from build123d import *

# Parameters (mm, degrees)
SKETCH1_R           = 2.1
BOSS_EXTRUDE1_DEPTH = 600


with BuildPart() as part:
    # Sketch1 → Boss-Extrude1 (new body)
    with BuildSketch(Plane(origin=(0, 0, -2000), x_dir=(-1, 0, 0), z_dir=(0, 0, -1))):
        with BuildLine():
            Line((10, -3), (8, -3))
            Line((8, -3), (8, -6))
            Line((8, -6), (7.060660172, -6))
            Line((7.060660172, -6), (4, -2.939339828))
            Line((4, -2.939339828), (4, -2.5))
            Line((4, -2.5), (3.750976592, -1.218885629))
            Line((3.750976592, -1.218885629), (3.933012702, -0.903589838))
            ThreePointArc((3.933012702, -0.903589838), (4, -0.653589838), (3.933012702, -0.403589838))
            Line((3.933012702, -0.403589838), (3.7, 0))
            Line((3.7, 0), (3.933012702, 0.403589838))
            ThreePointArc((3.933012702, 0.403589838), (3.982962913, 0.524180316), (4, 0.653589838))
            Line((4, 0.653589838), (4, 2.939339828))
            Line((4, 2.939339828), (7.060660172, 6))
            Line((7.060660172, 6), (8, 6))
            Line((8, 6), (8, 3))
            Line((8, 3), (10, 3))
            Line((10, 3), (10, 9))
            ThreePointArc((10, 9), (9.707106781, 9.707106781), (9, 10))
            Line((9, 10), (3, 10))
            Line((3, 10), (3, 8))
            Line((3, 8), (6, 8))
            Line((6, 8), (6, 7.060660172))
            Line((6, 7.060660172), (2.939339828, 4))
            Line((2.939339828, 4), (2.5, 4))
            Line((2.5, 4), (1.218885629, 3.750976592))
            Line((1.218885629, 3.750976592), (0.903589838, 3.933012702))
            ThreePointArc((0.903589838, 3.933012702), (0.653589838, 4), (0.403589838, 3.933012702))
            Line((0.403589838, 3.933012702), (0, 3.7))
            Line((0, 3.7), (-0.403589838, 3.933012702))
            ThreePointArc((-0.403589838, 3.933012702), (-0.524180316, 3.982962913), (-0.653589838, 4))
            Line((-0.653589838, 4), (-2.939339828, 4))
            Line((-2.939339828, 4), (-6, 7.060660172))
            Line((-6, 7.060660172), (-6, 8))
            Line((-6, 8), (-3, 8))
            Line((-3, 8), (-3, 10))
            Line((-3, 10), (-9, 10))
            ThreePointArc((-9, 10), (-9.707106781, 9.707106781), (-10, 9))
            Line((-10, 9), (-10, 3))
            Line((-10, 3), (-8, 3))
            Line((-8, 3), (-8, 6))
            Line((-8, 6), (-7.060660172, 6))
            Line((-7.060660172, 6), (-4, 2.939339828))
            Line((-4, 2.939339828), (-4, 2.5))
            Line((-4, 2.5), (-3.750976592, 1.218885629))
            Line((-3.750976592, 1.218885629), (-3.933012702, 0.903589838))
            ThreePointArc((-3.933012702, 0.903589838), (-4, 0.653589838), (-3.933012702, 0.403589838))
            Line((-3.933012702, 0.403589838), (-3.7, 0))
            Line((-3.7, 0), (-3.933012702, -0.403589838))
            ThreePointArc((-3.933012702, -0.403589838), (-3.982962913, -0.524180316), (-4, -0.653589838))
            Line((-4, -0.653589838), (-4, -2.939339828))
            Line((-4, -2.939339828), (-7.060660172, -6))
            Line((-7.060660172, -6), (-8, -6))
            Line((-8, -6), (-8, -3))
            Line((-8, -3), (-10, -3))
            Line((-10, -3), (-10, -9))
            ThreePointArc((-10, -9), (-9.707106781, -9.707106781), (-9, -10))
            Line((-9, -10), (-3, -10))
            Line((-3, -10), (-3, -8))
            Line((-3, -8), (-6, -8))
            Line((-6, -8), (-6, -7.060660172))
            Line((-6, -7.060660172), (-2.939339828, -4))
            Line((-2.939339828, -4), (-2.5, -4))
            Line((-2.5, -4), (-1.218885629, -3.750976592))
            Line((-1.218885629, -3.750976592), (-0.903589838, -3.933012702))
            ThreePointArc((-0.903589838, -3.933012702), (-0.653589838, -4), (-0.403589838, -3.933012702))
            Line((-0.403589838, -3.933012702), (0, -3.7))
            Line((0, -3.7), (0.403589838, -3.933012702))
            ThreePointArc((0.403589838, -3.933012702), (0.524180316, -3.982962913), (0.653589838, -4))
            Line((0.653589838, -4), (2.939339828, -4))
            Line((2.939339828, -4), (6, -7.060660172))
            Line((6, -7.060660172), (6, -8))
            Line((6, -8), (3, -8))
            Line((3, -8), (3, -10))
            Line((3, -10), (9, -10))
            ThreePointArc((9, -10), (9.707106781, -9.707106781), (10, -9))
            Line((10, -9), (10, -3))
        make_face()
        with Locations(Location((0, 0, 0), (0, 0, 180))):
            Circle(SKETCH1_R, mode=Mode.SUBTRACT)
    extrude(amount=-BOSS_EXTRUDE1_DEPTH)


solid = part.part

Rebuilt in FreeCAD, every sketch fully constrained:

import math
import FreeCAD as App
import Part
import Sketcher
Q = App.Units.Quantity

doc = App.newDocument("Part")
body = doc.addObject("PartDesign::Body", "Body")

sketch1 = doc.addObject("Sketcher::SketchObject", "Sketch")
body.addObject(sketch1)
sketch1.AttachmentSupport = (doc.XY_Plane, [""])
sketch1.MapMode = "FlatFace"
sketch1.AttachmentOffset = App.Placement(App.Vector(0, 0, -2000), App.Rotation())
sketch1.addGeometry(Part.LineSegment(App.Vector(-10, -3, 0), App.Vector(-8, -3, 0)), False)
sketch1.addGeometry(Part.LineSegment(App.Vector(-8, -3, 0), App.Vector(-8, -6, 0)), False)
sketch1.addGeometry(Part.LineSegment(App.Vector(-8, -6, 0), App.Vector(-7.06, -6, 0)), False)
sketch1.addGeometry(Part.LineSegment(App.Vector(-7.06, -6, 0), App.Vector(-4, -2.94, 0)), False)
sketch1.addGeometry(Part.LineSegment(App.Vector(-4, -2.94, 0), App.Vector(-4, -2.5, 0)), False)
sketch1.addGeometry(Part.LineSegment(App.Vector(-4, -2.5, 0), App.Vector(-3.75, -1.22, 0)), False)
sketch1.addGeometry(Part.LineSegment(App.Vector(-3.75, -1.22, 0), App.Vector(-3.93, -0.9, 0)), False)
sketch1.addGeometry(Part.ArcOfCircle(Part.Circle(App.Vector(-3.5, -0.65, 0), App.Vector(0, 0, 1), 0.5), math.radians(150), math.radians(210)), False)
sketch1.addGeometry(Part.LineSegment(App.Vector(-3.93, -0.4, 0), App.Vector(-3.7, 0, 0)), False)
sketch1.addGeometry(Part.LineSegment(App.Vector(-3.7, 0, 0), App.Vector(-3.93, 0.4, 0)), False)
sketch1.addGeometry(Part.ArcOfCircle(Part.Circle(App.Vector(-3.5, 0.65, 0), App.Vector(0, 0, 1), 0.5), math.radians(-180), math.radians(-150)), False)
sketch1.addGeometry(Part.LineSegment(App.Vector(-4, 0.65, 0), App.Vector(-4, 2.94, 0)), False)
sketch1.addGeometry(Part.LineSegment(App.Vector(-4, 2.94, 0), App.Vector(-7.06, 6, 0)), False)
sketch1.addGeometry(Part.LineSegment(App.Vector(-7.06, 6, 0), App.Vector(-8, 6, 0)), False)
sketch1.addGeometry(Part.LineSegment(App.Vector(-8, 6, 0), App.Vector(-8, 3, 0)), False)
sketch1.addGeometry(Part.LineSegment(App.Vector(-8, 3, 0), App.Vector(-10, 3, 0)), False)
sketch1.addGeometry(Part.LineSegment(App.Vector(-10, 3, 0), App.Vector(-10, 9, 0)), False)
sketch1.addGeometry(Part.ArcOfCircle(Part.Circle(App.Vector(-9, 9, 0), App.Vector(0, 0, 1), 1), math.radians(90), math.radians(180)), False)
sketch1.addGeometry(Part.LineSegment(App.Vector(-9, 10, 0), App.Vector(-3, 10, 0)), False)
sketch1.addGeometry(Part.LineSegment(App.Vector(-3, 10, 0), App.Vector(-3, 8, 0)), False)
sketch1.addGeometry(Part.LineSegment(App.Vector(-3, 8, 0), App.Vector(-6, 8, 0)), False)
sketch1.addGeometry(Part.LineSegment(App.Vector(-6, 8, 0), App.Vector(-6, 7.06, 0)), False)
sketch1.addGeometry(Part.LineSegment(App.Vector(-6, 7.06, 0), App.Vector(-2.94, 4, 0)), False)
sketch1.addGeometry(Part.LineSegment(App.Vector(-2.94, 4, 0), App.Vector(-2.5, 4, 0)), False)
sketch1.addGeometry(Part.LineSegment(App.Vector(-2.5, 4, 0), App.Vector(-1.22, 3.75, 0)), False)
sketch1.addGeometry(Part.LineSegment(App.Vector(-1.22, 3.75, 0), App.Vector(-0.9, 3.93, 0)), False)
sketch1.addGeometry(Part.ArcOfCircle(Part.Circle(App.Vector(-0.65, 3.5, 0), App.Vector(0, 0, 1), 0.5), math.radians(60), math.radians(120)), False)
sketch1.addGeometry(Part.LineSegment(App.Vector(-0.4, 3.93, 0), App.Vector(0, 3.7, 0)), False)
sketch1.addGeometry(Part.LineSegment(App.Vector(0, 3.7, 0), App.Vector(0.4, 3.93, 0)), False)
sketch1.addGeometry(Part.ArcOfCircle(Part.Circle(App.Vector(0.65, 3.5, 0), App.Vector(0, 0, 1), 0.5), math.radians(90), math.radians(120)), False)
sketch1.addGeometry(Part.LineSegment(App.Vector(0.65, 4, 0), App.Vector(2.94, 4, 0)), False)
sketch1.addGeometry(Part.LineSegment(App.Vector(2.94, 4, 0), App.Vector(6, 7.06, 0)), False)
sketch1.addGeometry(Part.LineSegment(App.Vector(6, 7.06, 0), App.Vector(6, 8, 0)), False)
sketch1.addGeometry(Part.LineSegment(App.Vector(6, 8, 0), App.Vector(3, 8, 0)), False)
sketch1.addGeometry(Part.LineSegment(App.Vector(3, 8, 0), App.Vector(3, 10, 0)), False)
sketch1.addGeometry(Part.LineSegment(App.Vector(3, 10, 0), App.Vector(9, 10, 0)), False)
sketch1.addGeometry(Part.ArcOfCircle(Part.Circle(App.Vector(9, 9, 0), App.Vector(0, 0, 1), 1), math.radians(0), math.radians(90)), False)
sketch1.addGeometry(Part.LineSegment(App.Vector(10, 9, 0), App.Vector(10, 3, 0)), False)
sketch1.addGeometry(Part.LineSegment(App.Vector(10, 3, 0), App.Vector(8, 3, 0)), False)
sketch1.addGeometry(Part.LineSegment(App.Vector(8, 3, 0), App.Vector(8, 6, 0)), False)
sketch1.addGeometry(Part.LineSegment(App.Vector(8, 6, 0), App.Vector(7.06, 6, 0)), False)
sketch1.addGeometry(Part.LineSegment(App.Vector(7.06, 6, 0), App.Vector(4, 2.94, 0)), False)
sketch1.addGeometry(Part.LineSegment(App.Vector(4, 2.94, 0), App.Vector(4, 2.5, 0)), False)
sketch1.addGeometry(Part.LineSegment(App.Vector(4, 2.5, 0), App.Vector(3.75, 1.22, 0)), False)
sketch1.addGeometry(Part.LineSegment(App.Vector(3.75, 1.22, 0), App.Vector(3.93, 0.9, 0)), False)
sketch1.addGeometry(Part.ArcOfCircle(Part.Circle(App.Vector(3.5, 0.65, 0), App.Vector(0, 0, 1), 0.5), math.radians(-30), math.radians(30)), False)
sketch1.addGeometry(Part.LineSegment(App.Vector(3.93, 0.4, 0), App.Vector(3.7, 0, 0)), False)
sketch1.addGeometry(Part.LineSegment(App.Vector(3.7, 0, 0), App.Vector(3.93, -0.4, 0)), False)
sketch1.addGeometry(Part.ArcOfCircle(Part.Circle(App.Vector(3.5, -0.65, 0), App.Vector(0, 0, 1), 0.5), math.radians(0), math.radians(30)), False)
sketch1.addGeometry(Part.LineSegment(App.Vector(4, -0.65, 0), App.Vector(4, -2.94, 0)), False)
sketch1.addGeometry(Part.LineSegment(App.Vector(4, -2.94, 0), App.Vector(7.06, -6, 0)), False)
sketch1.addGeometry(Part.LineSegment(App.Vector(7.06, -6, 0), App.Vector(8, -6, 0)), False)
sketch1.addGeometry(Part.LineSegment(App.Vector(8, -6, 0), App.Vector(8, -3, 0)), False)
sketch1.addGeometry(Part.LineSegment(App.Vector(8, -3, 0), App.Vector(10, -3, 0)), False)
sketch1.addGeometry(Part.LineSegment(App.Vector(10, -3, 0), App.Vector(10, -9, 0)), False)
sketch1.addGeometry(Part.ArcOfCircle(Part.Circle(App.Vector(9, -9, 0), App.Vector(0, 0, 1), 1), math.radians(-90), math.radians(0)), False)
sketch1.addGeometry(Part.LineSegment(App.Vector(9, -10, 0), App.Vector(3, -10, 0)), False)
sketch1.addGeometry(Part.LineSegment(App.Vector(3, -10, 0), App.Vector(3, -8, 0)), False)
sketch1.addGeometry(Part.LineSegment(App.Vector(3, -8, 0), App.Vector(6, -8, 0)), False)
sketch1.addGeometry(Part.LineSegment(App.Vector(6, -8, 0), App.Vector(6, -7.06, 0)), False)
sketch1.addGeometry(Part.LineSegment(App.Vector(6, -7.06, 0), App.Vector(2.94, -4, 0)), False)
sketch1.addGeometry(Part.LineSegment(App.Vector(2.94, -4, 0), App.Vector(2.5, -4, 0)), False)
sketch1.addGeometry(Part.LineSegment(App.Vector(2.5, -4, 0), App.Vector(1.22, -3.75, 0)), False)
sketch1.addGeometry(Part.LineSegment(App.Vector(1.22, -3.75, 0), App.Vector(0.9, -3.93, 0)), False)
sketch1.addGeometry(Part.ArcOfCircle(Part.Circle(App.Vector(0.65, -3.5, 0), App.Vector(0, 0, 1), 0.5), math.radians(-120), math.radians(-60)), False)
sketch1.addGeometry(Part.LineSegment(App.Vector(0.4, -3.93, 0), App.Vector(0, -3.7, 0)), False)
sketch1.addGeometry(Part.LineSegment(App.Vector(0, -3.7, 0), App.Vector(-0.4, -3.93, 0)), False)
sketch1.addGeometry(Part.ArcOfCircle(Part.Circle(App.Vector(-0.65, -3.5, 0), App.Vector(0, 0, 1), 0.5), math.radians(-90), math.radians(-60)), False)
sketch1.addGeometry(Part.LineSegment(App.Vector(-0.65, -4, 0), App.Vector(-2.94, -4, 0)), False)
sketch1.addGeometry(Part.LineSegment(App.Vector(-2.94, -4, 0), App.Vector(-6, -7.06, 0)), False)
sketch1.addGeometry(Part.LineSegment(App.Vector(-6, -7.06, 0), App.Vector(-6, -8, 0)), False)
sketch1.addGeometry(Part.LineSegment(App.Vector(-6, -8, 0), App.Vector(-3, -8, 0)), False)
sketch1.addGeometry(Part.LineSegment(App.Vector(-3, -8, 0), App.Vector(-3, -10, 0)), False)
sketch1.addGeometry(Part.LineSegment(App.Vector(-3, -10, 0), App.Vector(-9, -10, 0)), False)
sketch1.addGeometry(Part.ArcOfCircle(Part.Circle(App.Vector(-9, -9, 0), App.Vector(0, 0, 1), 1), math.radians(-180), math.radians(-90)), False)
sketch1.addGeometry(Part.LineSegment(App.Vector(-10, -9, 0), App.Vector(-10, -3, 0)), False)
sketch1.addGeometry(Part.Circle(App.Vector(0, 0, 0), App.Vector(0, 0, 1), 2.1), False)
sketch1.addConstraint(Sketcher.Constraint("Coincident", 0, 2, 1, 1))
sketch1.addConstraint(Sketcher.Constraint("Coincident", 1, 2, 2, 1))
sketch1.addConstraint(Sketcher.Constraint("Coincident", 2, 2, 3, 1))
sketch1.addConstraint(Sketcher.Constraint("Coincident", 3, 2, 4, 1))
sketch1.addConstraint(Sketcher.Constraint("Coincident", 4, 2, 5, 1))
sketch1.addConstraint(Sketcher.Constraint("Coincident", 5, 2, 6, 1))
sketch1.addConstraint(Sketcher.Constraint("Tangent", 6, 2, 7, 2))
sketch1.addConstraint(Sketcher.Constraint("Tangent", 7, 1, 8, 1))
sketch1.addConstraint(Sketcher.Constraint("Coincident", 8, 2, 9, 1))
sketch1.addConstraint(Sketcher.Constraint("Tangent", 9, 2, 10, 2))
sketch1.addConstraint(Sketcher.Constraint("Tangent", 10, 1, 11, 1))
sketch1.addConstraint(Sketcher.Constraint("Coincident", 11, 2, 12, 1))
sketch1.addConstraint(Sketcher.Constraint("Coincident", 12, 2, 13, 1))
sketch1.addConstraint(Sketcher.Constraint("Coincident", 13, 2, 14, 1))
sketch1.addConstraint(Sketcher.Constraint("Coincident", 14, 2, 15, 1))
sketch1.addConstraint(Sketcher.Constraint("Coincident", 15, 2, 16, 1))
sketch1.addConstraint(Sketcher.Constraint("Tangent", 16, 2, 17, 2))
sketch1.addConstraint(Sketcher.Constraint("Tangent", 17, 1, 18, 1))
sketch1.addConstraint(Sketcher.Constraint("Coincident", 18, 2, 19, 1))
sketch1.addConstraint(Sketcher.Constraint("Coincident", 19, 2, 20, 1))
sketch1.addConstraint(Sketcher.Constraint("Coincident", 20, 2, 21, 1))
sketch1.addConstraint(Sketcher.Constraint("Coincident", 21, 2, 22, 1))
sketch1.addConstraint(Sketcher.Constraint("Coincident", 22, 2, 23, 1))
sketch1.addConstraint(Sketcher.Constraint("Coincident", 23, 2, 24, 1))
sketch1.addConstraint(Sketcher.Constraint("Coincident", 24, 2, 25, 1))
sketch1.addConstraint(Sketcher.Constraint("Tangent", 25, 2, 26, 2))
sketch1.addConstraint(Sketcher.Constraint("Tangent", 26, 1, 27, 1))
sketch1.addConstraint(Sketcher.Constraint("Coincident", 27, 2, 28, 1))
sketch1.addConstraint(Sketcher.Constraint("Tangent", 28, 2, 29, 2))
sketch1.addConstraint(Sketcher.Constraint("Tangent", 29, 1, 30, 1))
sketch1.addConstraint(Sketcher.Constraint("Coincident", 30, 2, 31, 1))
sketch1.addConstraint(Sketcher.Constraint("Coincident", 31, 2, 32, 1))
sketch1.addConstraint(Sketcher.Constraint("Coincident", 32, 2, 33, 1))
sketch1.addConstraint(Sketcher.Constraint("Coincident", 33, 2, 34, 1))
sketch1.addConstraint(Sketcher.Constraint("Coincident", 34, 2, 35, 1))
sketch1.addConstraint(Sketcher.Constraint("Tangent", 35, 2, 36, 2))
sketch1.addConstraint(Sketcher.Constraint("Tangent", 36, 1, 37, 1))
sketch1.addConstraint(Sketcher.Constraint("Coincident", 37, 2, 38, 1))
sketch1.addConstraint(Sketcher.Constraint("Coincident", 38, 2, 39, 1))
sketch1.addConstraint(Sketcher.Constraint("Coincident", 39, 2, 40, 1))
sketch1.addConstraint(Sketcher.Constraint("Coincident", 40, 2, 41, 1))
sketch1.addConstraint(Sketcher.Constraint("Coincident", 41, 2, 42, 1))
sketch1.addConstraint(Sketcher.Constraint("Coincident", 42, 2, 43, 1))
sketch1.addConstraint(Sketcher.Constraint("Coincident", 43, 2, 44, 1))
sketch1.addConstraint(Sketcher.Constraint("Tangent", 44, 2, 45, 2))
sketch1.addConstraint(Sketcher.Constraint("Tangent", 45, 1, 46, 1))
sketch1.addConstraint(Sketcher.Constraint("Coincident", 46, 2, 47, 1))
sketch1.addConstraint(Sketcher.Constraint("Tangent", 47, 2, 48, 2))
sketch1.addConstraint(Sketcher.Constraint("Tangent", 48, 1, 49, 1))
sketch1.addConstraint(Sketcher.Constraint("Coincident", 49, 2, 50, 1))
sketch1.addConstraint(Sketcher.Constraint("Coincident", 50, 2, 51, 1))
sketch1.addConstraint(Sketcher.Constraint("Coincident", 51, 2, 52, 1))
sketch1.addConstraint(Sketcher.Constraint("Coincident", 52, 2, 53, 1))
sketch1.addConstraint(Sketcher.Constraint("Coincident", 53, 2, 54, 1))
sketch1.addConstraint(Sketcher.Constraint("Tangent", 54, 2, 55, 2))
sketch1.addConstraint(Sketcher.Constraint("Tangent", 55, 1, 56, 1))
sketch1.addConstraint(Sketcher.Constraint("Coincident", 56, 2, 57, 1))
sketch1.addConstraint(Sketcher.Constraint("Coincident", 57, 2, 58, 1))
sketch1.addConstraint(Sketcher.Constraint("Coincident", 58, 2, 59, 1))
sketch1.addConstraint(Sketcher.Constraint("Coincident", 59, 2, 60, 1))
sketch1.addConstraint(Sketcher.Constraint("Coincident", 60, 2, 61, 1))
sketch1.addConstraint(Sketcher.Constraint("Coincident", 61, 2, 62, 1))
sketch1.addConstraint(Sketcher.Constraint("Coincident", 62, 2, 63, 1))
sketch1.addConstraint(Sketcher.Constraint("Tangent", 63, 2, 64, 2))
sketch1.addConstraint(Sketcher.Constraint("Tangent", 64, 1, 65, 1))
sketch1.addConstraint(Sketcher.Constraint("Coincident", 65, 2, 66, 1))
sketch1.addConstraint(Sketcher.Constraint("Tangent", 66, 2, 67, 2))
sketch1.addConstraint(Sketcher.Constraint("Tangent", 67, 1, 68, 1))
sketch1.addConstraint(Sketcher.Constraint("Coincident", 68, 2, 69, 1))
sketch1.addConstraint(Sketcher.Constraint("Coincident", 69, 2, 70, 1))
sketch1.addConstraint(Sketcher.Constraint("Coincident", 70, 2, 71, 1))
sketch1.addConstraint(Sketcher.Constraint("Coincident", 71, 2, 72, 1))
sketch1.addConstraint(Sketcher.Constraint("Coincident", 72, 2, 73, 1))
sketch1.addConstraint(Sketcher.Constraint("Tangent", 73, 2, 74, 2))
sketch1.addConstraint(Sketcher.Constraint("Tangent", 74, 1, 75, 1))
sketch1.addConstraint(Sketcher.Constraint("Coincident", 75, 2, 0, 1))
sketch1.addConstraint(Sketcher.Constraint("Horizontal", 0))
sketch1.addConstraint(Sketcher.Constraint("Vertical", 1))
sketch1.addConstraint(Sketcher.Constraint("Horizontal", 2))
sketch1.addConstraint(Sketcher.Constraint("Vertical", 4))
sketch1.addConstraint(Sketcher.Constraint("Vertical", 11))
sketch1.addConstraint(Sketcher.Constraint("Horizontal", 13))
sketch1.addConstraint(Sketcher.Constraint("Vertical", 14))
sketch1.addConstraint(Sketcher.Constraint("Horizontal", 15))
sketch1.addConstraint(Sketcher.Constraint("Vertical", 16))
sketch1.addConstraint(Sketcher.Constraint("Horizontal", 18))
sketch1.addConstraint(Sketcher.Constraint("Vertical", 19))
sketch1.addConstraint(Sketcher.Constraint("Horizontal", 20))
sketch1.addConstraint(Sketcher.Constraint("Vertical", 21))
sketch1.addConstraint(Sketcher.Constraint("Horizontal", 23))
sketch1.addConstraint(Sketcher.Constraint("Horizontal", 30))
sketch1.addConstraint(Sketcher.Constraint("Vertical", 32))
sketch1.addConstraint(Sketcher.Constraint("Horizontal", 33))
sketch1.addConstraint(Sketcher.Constraint("Vertical", 34))
sketch1.addConstraint(Sketcher.Constraint("Horizontal", 35))
sketch1.addConstraint(Sketcher.Constraint("Vertical", 37))
sketch1.addConstraint(Sketcher.Constraint("Horizontal", 38))
sketch1.addConstraint(Sketcher.Constraint("Vertical", 39))
sketch1.addConstraint(Sketcher.Constraint("Horizontal", 40))
sketch1.addConstraint(Sketcher.Constraint("Vertical", 42))
sketch1.addConstraint(Sketcher.Constraint("Vertical", 49))
sketch1.addConstraint(Sketcher.Constraint("Horizontal", 51))
sketch1.addConstraint(Sketcher.Constraint("Vertical", 52))
sketch1.addConstraint(Sketcher.Constraint("Horizontal", 53))
sketch1.addConstraint(Sketcher.Constraint("Vertical", 54))
sketch1.addConstraint(Sketcher.Constraint("Horizontal", 56))
sketch1.addConstraint(Sketcher.Constraint("Vertical", 57))
sketch1.addConstraint(Sketcher.Constraint("Horizontal", 58))
sketch1.addConstraint(Sketcher.Constraint("Vertical", 59))
sketch1.addConstraint(Sketcher.Constraint("Horizontal", 61))
sketch1.addConstraint(Sketcher.Constraint("Horizontal", 68))
sketch1.addConstraint(Sketcher.Constraint("Vertical", 70))
sketch1.addConstraint(Sketcher.Constraint("Horizontal", 71))
sketch1.addConstraint(Sketcher.Constraint("Vertical", 72))
sketch1.addConstraint(Sketcher.Constraint("Horizontal", 73))
sketch1.addConstraint(Sketcher.Constraint("Vertical", 75))
sketch1.addConstraint(Sketcher.Constraint("Coincident", 76, 3, -1, 1))
sketch1.addConstraint(Sketcher.Constraint("Equal", 7, 10))
sketch1.addConstraint(Sketcher.Constraint("Equal", 10, 26))
sketch1.addConstraint(Sketcher.Constraint("Equal", 26, 29))
sketch1.addConstraint(Sketcher.Constraint("Equal", 17, 36))
sketch1.addConstraint(Sketcher.Constraint("Equal", 29, 45))
sketch1.addConstraint(Sketcher.Constraint("Equal", 45, 48))
sketch1.addConstraint(Sketcher.Constraint("Equal", 36, 55))
sketch1.addConstraint(Sketcher.Constraint("Equal", 48, 64))
sketch1.addConstraint(Sketcher.Constraint("Equal", 64, 67))
sketch1.addConstraint(Sketcher.Constraint("Equal", 55, 74))
sketch1.addConstraint(Sketcher.Constraint("Symmetric", 7, 3, 45, 3, -1, 1))
sketch1.addConstraint(Sketcher.Constraint("Symmetric", 10, 3, 48, 3, -1, 1))
sketch1.addConstraint(Sketcher.Constraint("Symmetric", 17, 3, 55, 3, -1, 1))
sketch1.addConstraint(Sketcher.Constraint("Symmetric", 26, 3, 64, 3, -1, 1))
sketch1.addConstraint(Sketcher.Constraint("Symmetric", 29, 3, 67, 3, -1, 1))
sketch1.addConstraint(Sketcher.Constraint("Symmetric", 36, 3, 74, 3, -1, 1))
sketch1.addConstraint(Sketcher.Constraint("Symmetric", 0, 2, 38, 2, -1, 1))
sketch1.addConstraint(Sketcher.Constraint("Symmetric", 2, 2, 40, 2, -1, 1))
sketch1.addConstraint(Sketcher.Constraint("Symmetric", 3, 2, 41, 2, -1, 1))
sketch1.addConstraint(Sketcher.Constraint("Symmetric", 5, 2, 43, 2, -1, 1))
sketch1.addConstraint(Sketcher.Constraint("Symmetric", 8, 2, 46, 2, -1, 1))
sketch1.addConstraint(Sketcher.Constraint("Symmetric", 12, 2, 50, 2, -1, 1))
sketch1.addConstraint(Sketcher.Constraint("Symmetric", 14, 2, 52, 2, -1, 1))
sketch1.addConstraint(Sketcher.Constraint("Symmetric", 19, 2, 57, 2, -1, 1))
sketch1.addConstraint(Sketcher.Constraint("Symmetric", 21, 2, 59, 2, -1, 1))
sketch1.addConstraint(Sketcher.Constraint("Symmetric", 22, 2, 60, 2, -1, 1))
sketch1.addConstraint(Sketcher.Constraint("Symmetric", 24, 2, 62, 2, -1, 1))
sketch1.addConstraint(Sketcher.Constraint("Symmetric", 27, 2, 65, 2, -1, 1))
sketch1.addConstraint(Sketcher.Constraint("Symmetric", 31, 2, 69, 2, -1, 1))
sketch1.addConstraint(Sketcher.Constraint("Symmetric", 33, 2, 71, 2, -1, 1))
sketch1.addConstraint(Sketcher.Constraint("Symmetric", 26, 3, 29, 3, -2))
sketch1.addConstraint(Sketcher.Constraint("Symmetric", 17, 3, 36, 3, -2))
sketch1.addConstraint(Sketcher.Constraint("Symmetric", 10, 3, 45, 3, -2))
sketch1.addConstraint(Sketcher.Constraint("Symmetric", 22, 2, 30, 2, -2))
sketch1.addConstraint(Sketcher.Constraint("Symmetric", 21, 2, 31, 2, -2))
sketch1.addConstraint(Sketcher.Constraint("Symmetric", 19, 2, 33, 2, -2))
sketch1.addConstraint(Sketcher.Constraint("Symmetric", 14, 2, 38, 2, -2))
sketch1.addConstraint(Sketcher.Constraint("Symmetric", 12, 2, 40, 2, -2))
sketch1.addConstraint(Sketcher.Constraint("Symmetric", 11, 2, 41, 2, -2))
sketch1.addConstraint(Sketcher.Constraint("PointOnObject", 8, 2, -1))
sketch1.addConstraint(Sketcher.Constraint("PointOnObject", 27, 2, -2))
sketch1.addConstraint(Sketcher.Constraint("Parallel", 6, 9))
sketch1.addConstraint(Sketcher.Constraint("Perpendicular", 3, 12))
sketch1.addConstraint(Sketcher.Constraint("Parallel", 12, 22))
sketch1.addConstraint(Sketcher.Constraint("Perpendicular", 5, 24))
sketch1.addConstraint(Sketcher.Constraint("Perpendicular", 9, 25))
sketch1.addConstraint(Sketcher.Constraint("Perpendicular", 8, 27))
sketch1.addConstraint(Sketcher.Constraint("Perpendicular", 24, 43))
sketch1.addConstraint(Sketcher.Constraint("Perpendicular", 41, 50))
sketch1.addConstraint(Sketcher.Constraint("Perpendicular", 43, 62))
sketch1.addConstraint(Sketcher.Constraint("Perpendicular", 60, 69))
sketch1.addConstraint(Sketcher.Constraint("Equal", 71, 1))
sketch1.addConstraint(Sketcher.Constraint("Equal", 61, 4))
sketch1.addConstraint(Sketcher.Constraint("Equal", 68, 11))
sketch1.addConstraint(Sketcher.Constraint("Equal", 73, 16))
sketch1.addConstraint(Sketcher.Constraint("Equal", 53, 19))
sketch1.addConstraint(Sketcher.Constraint("Equal", 51, 21))
sketch1.addConstraint(Sketcher.Constraint("Equal", 12, 22))
sketch1.addConstraint(Sketcher.Constraint("Equal", 9, 27))
sketch1.addConstraint(Sketcher.Constraint("Radius", 17, Q("1 mm")))
sketch1.addConstraint(Sketcher.Constraint("Diameter", 76, Q("4.2 mm")))
sketch1.addConstraint(Sketcher.Constraint("Radius", 7, Q("0.5 mm")))
sketch1.addConstraint(Sketcher.Constraint("DistanceX", 0, 1, 0, 2, Q("2 mm")))
sketch1.addConstraint(Sketcher.Constraint("DistanceX", 18, 1, 18, 2, Q("6 mm")))
sketch1.addConstraint(Sketcher.Constraint("DistanceX", 20, 2, 20, 1, Q("3 mm")))
sketch1.addConstraint(Sketcher.Constraint("Angle", 5, Q("79 deg")))
sketch1.addConstraint(Sketcher.Constraint("Angle", 6, Q("120 deg")))
sketch1.addConstraint(Sketcher.Constraint("DistanceX", 17, 3, -1, 1, Q("9 mm")))
sketch1.addConstraint(Sketcher.Constraint("DistanceX", 3, 2, -1, 1, Q("4 mm")))
sketch1.addConstraint(Sketcher.Constraint("DistanceY", 4, 2, -1, 1, Q("2.5 mm")))
sketch1.addConstraint(Sketcher.Constraint("DistanceX", 8, 2, -1, 1, Q("3.7 mm")))
sketch1.addConstraint(Sketcher.Constraint("DistanceX", 2, 1, 2, 2, Q("0.93934 mm")))
pad1 = doc.addObject("PartDesign::Pad", "Pad")
body.addObject(pad1)
pad1.Profile = sketch1
pad1.Length = 600

doc.recompute()
